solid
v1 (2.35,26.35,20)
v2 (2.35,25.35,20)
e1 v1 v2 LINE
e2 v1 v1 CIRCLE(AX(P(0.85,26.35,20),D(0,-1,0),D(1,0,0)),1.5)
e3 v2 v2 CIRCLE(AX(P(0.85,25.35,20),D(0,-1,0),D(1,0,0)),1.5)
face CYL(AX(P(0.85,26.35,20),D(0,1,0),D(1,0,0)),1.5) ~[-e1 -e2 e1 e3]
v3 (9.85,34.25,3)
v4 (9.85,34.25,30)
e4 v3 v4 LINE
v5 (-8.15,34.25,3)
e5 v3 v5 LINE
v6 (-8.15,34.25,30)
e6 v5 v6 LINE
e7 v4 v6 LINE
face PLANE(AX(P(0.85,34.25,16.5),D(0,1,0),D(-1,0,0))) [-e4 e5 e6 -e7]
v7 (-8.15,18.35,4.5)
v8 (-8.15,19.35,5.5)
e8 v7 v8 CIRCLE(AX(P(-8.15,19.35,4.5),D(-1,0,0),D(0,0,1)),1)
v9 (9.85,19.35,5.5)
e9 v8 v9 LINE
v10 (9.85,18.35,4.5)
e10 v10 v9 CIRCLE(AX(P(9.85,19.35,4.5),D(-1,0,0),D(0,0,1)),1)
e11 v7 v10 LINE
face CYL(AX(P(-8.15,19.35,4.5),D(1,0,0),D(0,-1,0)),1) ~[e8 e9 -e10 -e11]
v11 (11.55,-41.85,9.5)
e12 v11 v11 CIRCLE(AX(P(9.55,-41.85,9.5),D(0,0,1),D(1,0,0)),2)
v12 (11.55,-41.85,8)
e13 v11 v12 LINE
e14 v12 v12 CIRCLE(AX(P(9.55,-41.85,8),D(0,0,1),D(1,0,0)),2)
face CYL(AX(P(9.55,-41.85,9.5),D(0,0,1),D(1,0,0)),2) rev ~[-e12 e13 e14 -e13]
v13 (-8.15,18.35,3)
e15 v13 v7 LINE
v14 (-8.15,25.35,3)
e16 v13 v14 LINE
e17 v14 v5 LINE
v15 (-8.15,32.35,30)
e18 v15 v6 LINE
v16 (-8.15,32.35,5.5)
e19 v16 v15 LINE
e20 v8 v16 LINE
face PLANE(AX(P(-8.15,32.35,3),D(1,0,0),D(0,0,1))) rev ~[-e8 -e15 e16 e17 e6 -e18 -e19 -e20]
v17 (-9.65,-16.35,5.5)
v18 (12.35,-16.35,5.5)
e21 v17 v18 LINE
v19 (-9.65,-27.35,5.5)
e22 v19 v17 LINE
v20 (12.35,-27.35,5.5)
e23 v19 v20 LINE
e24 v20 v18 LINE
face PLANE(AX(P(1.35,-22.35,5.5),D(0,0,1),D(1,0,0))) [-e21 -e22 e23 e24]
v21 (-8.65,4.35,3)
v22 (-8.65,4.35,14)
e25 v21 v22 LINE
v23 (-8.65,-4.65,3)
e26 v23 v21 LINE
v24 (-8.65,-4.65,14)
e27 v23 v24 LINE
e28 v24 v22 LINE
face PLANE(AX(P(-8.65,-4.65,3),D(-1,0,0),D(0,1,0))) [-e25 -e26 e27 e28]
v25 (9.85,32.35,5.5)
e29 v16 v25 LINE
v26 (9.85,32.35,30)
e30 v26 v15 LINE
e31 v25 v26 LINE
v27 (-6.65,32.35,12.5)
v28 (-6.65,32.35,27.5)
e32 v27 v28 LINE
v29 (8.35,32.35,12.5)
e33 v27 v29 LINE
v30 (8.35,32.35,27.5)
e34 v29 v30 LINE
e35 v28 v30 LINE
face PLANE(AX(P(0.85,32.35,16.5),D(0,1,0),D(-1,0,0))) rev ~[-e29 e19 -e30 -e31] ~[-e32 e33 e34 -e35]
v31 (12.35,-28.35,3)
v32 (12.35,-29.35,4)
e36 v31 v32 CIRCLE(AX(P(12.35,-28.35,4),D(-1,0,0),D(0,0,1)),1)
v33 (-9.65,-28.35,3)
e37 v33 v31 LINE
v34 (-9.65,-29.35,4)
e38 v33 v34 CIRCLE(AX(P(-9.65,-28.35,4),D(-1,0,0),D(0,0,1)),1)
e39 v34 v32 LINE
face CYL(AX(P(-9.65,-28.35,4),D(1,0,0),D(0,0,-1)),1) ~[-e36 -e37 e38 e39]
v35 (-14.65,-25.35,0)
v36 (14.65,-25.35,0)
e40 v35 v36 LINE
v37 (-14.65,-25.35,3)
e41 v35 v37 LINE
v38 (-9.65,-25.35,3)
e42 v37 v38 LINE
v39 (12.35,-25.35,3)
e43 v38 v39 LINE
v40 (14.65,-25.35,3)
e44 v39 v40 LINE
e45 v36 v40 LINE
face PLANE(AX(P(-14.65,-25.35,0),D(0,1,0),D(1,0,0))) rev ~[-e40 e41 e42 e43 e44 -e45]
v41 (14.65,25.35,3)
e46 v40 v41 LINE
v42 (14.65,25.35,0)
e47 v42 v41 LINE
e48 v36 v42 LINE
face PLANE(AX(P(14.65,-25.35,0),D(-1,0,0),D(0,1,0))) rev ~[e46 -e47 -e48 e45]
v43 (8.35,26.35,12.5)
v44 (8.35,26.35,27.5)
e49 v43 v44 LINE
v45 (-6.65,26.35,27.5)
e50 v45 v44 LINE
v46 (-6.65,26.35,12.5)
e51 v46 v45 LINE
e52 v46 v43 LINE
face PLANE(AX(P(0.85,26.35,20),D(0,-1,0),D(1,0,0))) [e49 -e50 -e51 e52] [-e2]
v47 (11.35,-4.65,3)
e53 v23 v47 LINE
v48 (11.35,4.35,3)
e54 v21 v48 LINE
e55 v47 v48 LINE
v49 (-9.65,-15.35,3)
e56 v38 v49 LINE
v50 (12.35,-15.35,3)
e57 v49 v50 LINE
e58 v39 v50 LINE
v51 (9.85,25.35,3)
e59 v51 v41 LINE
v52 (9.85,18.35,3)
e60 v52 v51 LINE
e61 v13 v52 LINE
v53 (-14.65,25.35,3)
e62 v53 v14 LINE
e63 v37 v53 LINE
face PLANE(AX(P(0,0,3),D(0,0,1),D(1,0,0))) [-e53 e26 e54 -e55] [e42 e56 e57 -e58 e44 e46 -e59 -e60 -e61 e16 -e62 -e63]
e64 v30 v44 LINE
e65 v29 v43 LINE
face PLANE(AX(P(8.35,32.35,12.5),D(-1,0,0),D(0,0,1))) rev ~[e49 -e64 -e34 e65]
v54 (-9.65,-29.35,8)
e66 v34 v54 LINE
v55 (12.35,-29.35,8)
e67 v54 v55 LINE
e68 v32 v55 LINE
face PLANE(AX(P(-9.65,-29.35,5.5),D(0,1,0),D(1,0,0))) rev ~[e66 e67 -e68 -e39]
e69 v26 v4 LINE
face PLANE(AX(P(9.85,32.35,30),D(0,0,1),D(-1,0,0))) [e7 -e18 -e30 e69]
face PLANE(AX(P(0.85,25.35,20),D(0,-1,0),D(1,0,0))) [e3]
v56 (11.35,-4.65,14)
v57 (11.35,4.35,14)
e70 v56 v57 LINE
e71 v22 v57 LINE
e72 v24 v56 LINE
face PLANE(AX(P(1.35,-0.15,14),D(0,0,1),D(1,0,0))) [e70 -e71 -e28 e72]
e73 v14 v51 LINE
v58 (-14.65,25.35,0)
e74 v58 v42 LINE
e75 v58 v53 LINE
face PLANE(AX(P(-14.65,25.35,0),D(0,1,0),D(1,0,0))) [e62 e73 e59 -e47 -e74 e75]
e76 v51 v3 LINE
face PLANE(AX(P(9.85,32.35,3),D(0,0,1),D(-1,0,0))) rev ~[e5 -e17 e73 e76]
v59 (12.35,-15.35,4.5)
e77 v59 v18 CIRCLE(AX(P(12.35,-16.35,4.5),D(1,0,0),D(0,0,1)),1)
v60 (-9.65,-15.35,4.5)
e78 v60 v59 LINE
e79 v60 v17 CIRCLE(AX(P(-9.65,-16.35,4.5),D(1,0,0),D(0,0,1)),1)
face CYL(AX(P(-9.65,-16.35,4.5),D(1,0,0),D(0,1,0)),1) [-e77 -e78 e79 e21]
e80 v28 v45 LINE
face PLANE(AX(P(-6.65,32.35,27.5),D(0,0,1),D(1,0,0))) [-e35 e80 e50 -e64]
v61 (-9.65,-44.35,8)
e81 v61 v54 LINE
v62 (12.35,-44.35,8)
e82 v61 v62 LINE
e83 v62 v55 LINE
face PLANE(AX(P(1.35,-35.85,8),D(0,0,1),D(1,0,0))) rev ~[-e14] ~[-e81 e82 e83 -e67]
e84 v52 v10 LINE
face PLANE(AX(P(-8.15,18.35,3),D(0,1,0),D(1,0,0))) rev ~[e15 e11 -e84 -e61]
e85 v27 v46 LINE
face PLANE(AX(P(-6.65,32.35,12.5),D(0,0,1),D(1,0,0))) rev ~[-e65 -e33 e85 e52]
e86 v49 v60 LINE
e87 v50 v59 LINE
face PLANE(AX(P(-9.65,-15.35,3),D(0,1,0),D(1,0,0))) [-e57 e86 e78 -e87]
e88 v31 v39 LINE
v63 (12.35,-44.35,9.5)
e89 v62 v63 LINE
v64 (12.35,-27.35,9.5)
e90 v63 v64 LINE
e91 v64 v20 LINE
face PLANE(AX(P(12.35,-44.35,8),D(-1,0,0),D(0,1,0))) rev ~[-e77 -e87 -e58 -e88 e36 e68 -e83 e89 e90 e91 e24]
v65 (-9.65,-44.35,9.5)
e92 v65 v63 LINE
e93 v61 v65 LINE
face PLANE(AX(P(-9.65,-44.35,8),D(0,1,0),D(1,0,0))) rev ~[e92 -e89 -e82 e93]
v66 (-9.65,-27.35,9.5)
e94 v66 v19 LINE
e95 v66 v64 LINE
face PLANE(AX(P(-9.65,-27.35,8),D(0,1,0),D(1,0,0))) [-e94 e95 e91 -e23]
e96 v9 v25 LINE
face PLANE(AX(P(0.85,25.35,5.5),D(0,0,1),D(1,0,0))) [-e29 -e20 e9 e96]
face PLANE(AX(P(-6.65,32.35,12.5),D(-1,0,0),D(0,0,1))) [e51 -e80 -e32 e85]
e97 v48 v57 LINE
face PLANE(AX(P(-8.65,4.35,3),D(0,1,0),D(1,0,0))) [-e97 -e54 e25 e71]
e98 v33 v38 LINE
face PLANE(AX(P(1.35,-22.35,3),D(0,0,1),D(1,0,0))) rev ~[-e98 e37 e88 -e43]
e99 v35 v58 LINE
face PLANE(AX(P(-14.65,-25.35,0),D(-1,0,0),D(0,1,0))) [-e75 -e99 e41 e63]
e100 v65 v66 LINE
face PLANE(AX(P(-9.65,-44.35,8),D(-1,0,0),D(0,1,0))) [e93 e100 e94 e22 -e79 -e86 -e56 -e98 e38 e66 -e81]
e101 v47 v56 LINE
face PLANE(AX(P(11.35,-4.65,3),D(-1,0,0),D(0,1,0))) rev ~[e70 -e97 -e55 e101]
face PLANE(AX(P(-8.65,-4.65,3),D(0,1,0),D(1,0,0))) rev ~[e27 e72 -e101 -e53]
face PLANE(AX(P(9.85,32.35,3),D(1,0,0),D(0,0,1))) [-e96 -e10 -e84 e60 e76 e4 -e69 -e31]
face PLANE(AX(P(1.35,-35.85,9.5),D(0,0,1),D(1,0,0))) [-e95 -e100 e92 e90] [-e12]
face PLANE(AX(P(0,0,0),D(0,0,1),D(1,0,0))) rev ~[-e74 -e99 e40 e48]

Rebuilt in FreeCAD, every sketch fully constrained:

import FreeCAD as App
import Part
import Sketcher
from FreeCAD import Vector


def edges_at(feature, points):
    """Names of the edges that pass closest to the given points."""
    edges = feature.Shape.Edges
    near = lambda p: min(range(len(edges)), key=lambda i: edges[i].distToShape(Part.Vertex(*p))[0])
    return sorted({f"Edge{near(p) + 1}" for p in points})

doc = App.newDocument("Part")
body = doc.addObject("PartDesign::Body", "Body")

# Sketch on XY plane
sketch1 = body.newObject("Sketcher::SketchObject", "Sketch")
sketch1.AttachmentSupport = (doc.getObject("XY_Plane"), [""])
sketch1.MapMode = "FlatFace"
sketch1.addGeometry([
    Part.LineSegment(Vector(-15, 25, 0), Vector(-15, -25, 0)),
    Part.LineSegment(Vector(-15, -25, 0), Vector(15, -25, 0)),
    Part.LineSegment(Vector(15, -25, 0), Vector(15, 25, 0)),
    Part.LineSegment(Vector(15, 25, 0), Vector(-15, 25, 0)),
], False)
sketch1.addConstraint([
    Sketcher.Constraint("Coincident", 0, 2, 1, 1),
    Sketcher.Constraint("Coincident", 1, 2, 2, 1),
    Sketcher.Constraint("Coincident", 2, 2, 3, 1),
    Sketcher.Constraint("Coincident", 3, 2, 0, 1),
    Sketcher.Constraint("Vertical", 0),
    Sketcher.Constraint("Horizontal", 1),
    Sketcher.Constraint("Vertical", 2),
    Sketcher.Constraint("Horizontal", 3),
    Sketcher.Constraint("Symmetric", 0, 2, 2, 2, -1, 1),
    Sketcher.Constraint("DistanceX", 1, 1, 1, 2, 29.3),
    Sketcher.Constraint("DistanceY", 0, 2, 0, 1, 50.7),
])
pad1 = body.newObject("PartDesign::Pad", "Pad")
pad1.Profile = sketch1
pad1.Length = 3

# Sketch on XY plane
sketch2 = body.newObject("Sketcher::SketchObject", "Sketch001")
sketch2.AttachmentSupport = (doc.getObject("XY_Plane"), [""])
sketch2.MapMode = "FlatFace"
sketch2.AttachmentOffset = App.Placement(Vector(0, 0, 3), App.Rotation())
sketch2.addGeometry([
    Part.LineSegment(Vector(-8, 32, 0), Vector(-8, 18, 0)),  # 0
    Part.LineSegment(Vector(-8, 18, 0), Vector(10, 18, 0)),  # 1
    Part.LineSegment(Vector(10, 18, 0), Vector(10, 32, 0)),  # 2
    Part.LineSegment(Vector(10, 32, 0), Vector(-8, 32, 0)),  # 3
    Part.LineSegment(Vector(-10, -15, 0), Vector(-10, -29, 0)),  # 4
    Part.LineSegment(Vector(-10, -29, 0), Vector(12, -29, 0)),  # 5
    Part.LineSegment(Vector(12, -29, 0), Vector(12, -15, 0)),  # 6
    Part.LineSegment(Vector(12, -15, 0), Vector(-10, -15, 0)),  # 7
], False)
sketch2.addConstraint([
    Sketcher.Constraint("Coincident", 0, 2, 1, 1),
    Sketcher.Constraint("Coincident", 1, 2, 2, 1),
    Sketcher.Constraint("Coincident", 2, 2, 3, 1),
    Sketcher.Constraint("Coincident", 3, 2, 0, 1),
    Sketcher.Constraint("Coincident", 4, 2, 5, 1),
    Sketcher.Constraint("Coincident", 5, 2, 6, 1),
    Sketcher.Constraint("Coincident", 6, 2, 7, 1),
    Sketcher.Constraint("Coincident", 7, 2, 4, 1),
    Sketcher.Constraint("Vertical", 0),
    Sketcher.Constraint("Horizontal", 1),
    Sketcher.Constraint("Vertical", 2),
    Sketcher.Constraint("Horizontal", 3),
    Sketcher.Constraint("Vertical", 4),
    Sketcher.Constraint("Horizontal", 5),
    Sketcher.Constraint("Vertical", 6),
    Sketcher.Constraint("Horizontal", 7),
    Sketcher.Constraint("Equal", 2, 4),
    Sketcher.Constraint("DistanceX", 1, 1, 1, 2, 18.0),
    Sketcher.Constraint("DistanceX", 5, 1, 5, 2, 22.0),
    Sketcher.Constraint("DistanceY", 0, 2, 0, 1, 14.0),
    Sketcher.Constraint("DistanceX", 4, 2, 0, 2, 1.5),
    Sketcher.Constraint("DistanceY", 4, 2, 0, 2, 47.7),
    Sketcher.Constraint("DistanceX", 0, 2, -1, 1, 8.15),
    Sketcher.Constraint("DistanceY", -1, 1, 0, 2, 18.35),
])
pad2 = body.newObject("PartDesign::Pad", "Pad001")
pad2.Profile = sketch2
pad2.Length = 2.5
doc.recompute()

fillet = body.newObject("PartDesign::Fillet", "Fillet")
fillet.Base = (pad2, edges_at(pad2, [(0.85, 18.35, 5.5), (1.35, -15.35, 5.5)]))
fillet.Radius = 1

# Sketch on XZ plane
sketch3 = body.newObject("Sketcher::SketchObject", "Sketch002")
sketch3.AttachmentSupport = (doc.getObject("XZ_Plane"), [""])
sketch3.MapMode = "FlatFace"
sketch3.AttachmentOffset = App.Placement(Vector(0, 0, -32.35), App.Rotation())
sketch3.addGeometry([
    Part.LineSegment(Vector(10, 30, 0), Vector(10, 3, 0)),
    Part.LineSegment(Vector(10, 3, 0), Vector(-8, 3, 0)),
    Part.LineSegment(Vector(-8, 3, 0), Vector(-8, 30, 0)),
    Part.LineSegment(Vector(-8, 30, 0), Vector(10, 30, 0)),
], False)
sketch3.addConstraint([
    Sketcher.Constraint("Coincident", 0, 2, 1, 1),
    Sketcher.Constraint("Coincident", 1, 2, 2, 1),
    Sketcher.Constraint("Coincident", 2, 2, 3, 1),
    Sketcher.Constraint("Coincident", 3, 2, 0, 1),
    Sketcher.Constraint("Vertical", 0),
    Sketcher.Constraint("Horizontal", 1),
    Sketcher.Constraint("Vertical", 2),
    Sketcher.Constraint("Horizontal", 3),
    Sketcher.Constraint("DistanceX", 1, 2, 1, 1, 18.0),
    Sketcher.Constraint("DistanceY", 0, 2, 0, 1, 27.0),
    Sketcher.Constraint("DistanceY", -1, 1, 0, 2, 3.0),
    Sketcher.Constraint("DistanceX", -1, 1, 0, 2, 9.85),
])
pad3 = body.newObject("PartDesign::Pad", "Pad002")
pad3.Profile = sketch3
pad3.Length = 1.9
pad3.Reversed = True

# Sketch on XZ plane
sketch4 = body.newObject("Sketcher::SketchObject", "Sketch003")
sketch4.AttachmentSupport = (doc.getObject("XZ_Plane"), [""])
sketch4.MapMode = "FlatFace"
sketch4.AttachmentOffset = App.Placement(Vector(0, 0, -32.35), App.Rotation())
sketch4.addGeometry([
    Part.LineSegment(Vector(-7, 28, 0), Vector(-7, 12, 0)),
    Part.LineSegment(Vector(-7, 12, 0), Vector(8, 12, 0)),
    Part.LineSegment(Vector(8, 12, 0), Vector(8, 28, 0)),
    Part.LineSegment(Vector(8, 28, 0), Vector(-7, 28, 0)),
], False)
sketch4.addConstraint([
    Sketcher.Constraint("Coincident", 0, 2, 1, 1),
    Sketcher.Constraint("Coincident", 1, 2, 2, 1),
    Sketcher.Constraint("Coincident", 2, 2, 3, 1),
    Sketcher.Constraint("Coincident", 3, 2, 0, 1),
    Sketcher.Constraint("Vertical", 0),
    Sketcher.Constraint("Horizontal", 1),
    Sketcher.Constraint("Vertical", 2),
    Sketcher.Constraint("Horizontal", 3),
    Sketcher.Constraint("Equal", 3, 0),
    Sketcher.Constraint("DistanceX", 1, 1, 1, 2, 15.0),
    Sketcher.Constraint("DistanceY", -1, 1, 0, 2, 12.5),
    Sketcher.Constraint("DistanceX", 0, 2, -1, 1, 6.65),
])
pad4 = body.newObject("PartDesign::Pad", "Pad003")
pad4.Profile = sketch4
pad4.Length = 6

# Sketch on XZ plane
sketch5 = body.newObject("Sketcher::SketchObject", "Sketch004")
sketch5.AttachmentSupport = (doc.getObject("XZ_Plane"), [""])
sketch5.MapMode = "FlatFace"
sketch5.AttachmentOffset = App.Placement(Vector(0, 0, -26.35), App.Rotation())
sketch5.addGeometry(Part.Circle(Vector(0.8, 20, 0), Vector(0, 0, 1), 1.5), False)
sketch5.addConstraint([
    Sketcher.Constraint("Diameter", 0, 3.0),
    Sketcher.Constraint("DistanceY", -1, 1, 0, 3, 20.0),
    Sketcher.Constraint("DistanceX", -1, 1, 0, 3, 0.85),
])
pad5 = body.newObject("PartDesign::Pad", "Pad004")
pad5.Profile = sketch5
pad5.Length = 1

# Sketch on XY plane
sketch6 = body.newObject("Sketcher::SketchObject", "Sketch005")
sketch6.AttachmentSupport = (doc.getObject("XY_Plane"), [""])
sketch6.MapMode = "FlatFace"
sketch6.AttachmentOffset = App.Placement(Vector(0, 0, 5.5), App.Rotation())
sketch6.addGeometry([
    Part.LineSegment(Vector(-9.7, -27.4, 0), Vector(-9.7, -29.4, 0)),
    Part.LineSegment(Vector(-9.7, -29.4, 0), Vector(12.3, -29.4, 0)),
    Part.LineSegment(Vector(12.3, -29.4, 0), Vector(12.3, -27.4, 0)),
    Part.LineSegment(Vector(12.3, -27.4, 0), Vector(-9.7, -27.4, 0)),
], False)
sketch6.addConstraint([
    Sketcher.Constraint("Coincident", 0, 2, 1, 1),
    Sketcher.Constraint("Coincident", 1, 2, 2, 1),
    Sketcher.Constraint("Coincident", 2, 2, 3, 1),
    Sketcher.Constraint("Coincident", 3, 2, 0, 1),
    Sketcher.Constraint("Vertical", 0),
    Sketcher.Constraint("Horizontal", 1),
    Sketcher.Constraint("Vertical", 2),
    Sketcher.Constraint("Horizontal", 3),
    Sketcher.Constraint("DistanceX", 1, 1, 1, 2, 22.0),
    Sketcher.Constraint("DistanceY", 0, 2, 0, 1, 2.0),
    Sketcher.Constraint("DistanceX", 0, 2, -1, 1, 9.65),
    Sketcher.Constraint("DistanceY", 0, 2, -1, 1, 29.35),
])
pad6 = body.newObject("PartDesign::Pad", "Pad005")
pad6.Profile = sketch6
pad6.Length = 2.5

# Sketch on XY plane
sketch7 = body.newObject("Sketcher::SketchObject", "Sketch006")
sketch7.AttachmentSupport = (doc.getObject("XY_Plane"), [""])
sketch7.MapMode = "FlatFace"
sketch7.AttachmentOffset = App.Placement(Vector(0, 0, 8), App.Rotation())
sketch7.addGeometry([
    Part.LineSegment(Vector(-10, -27, 0), Vector(-10, -44, 0)),
    Part.LineSegment(Vector(-10, -44, 0), Vector(12, -44, 0)),
    Part.LineSegment(Vector(12, -44, 0), Vector(12, -27, 0)),
    Part.LineSegment(Vector(12, -27, 0), Vector(-10, -27, 0)),
], False)
sketch7.addConstraint([
    Sketcher.Constraint("Coincident", 0, 2, 1, 1),
    Sketcher.Constraint("Coincident", 1, 2, 2, 1),
    Sketcher.Constraint("Coincident", 2, 2, 3, 1),
    Sketcher.Constraint("Coincident", 3, 2, 0, 1),
    Sketcher.Constraint("Vertical", 0),
    Sketcher.Constraint("Horizontal", 1),
    Sketcher.Constraint("Vertical", 2),
    Sketcher.Constraint("Horizontal", 3),
    Sketcher.Constraint("DistanceX", 1, 1, 1, 2, 22.0),
    Sketcher.Constraint("DistanceY", 0, 2, 0, 1, 17.0),
    Sketcher.Constraint("DistanceX", 0, 2, -1, 1, 9.65),
    Sketcher.Constraint("DistanceY", 0, 2, -1, 1, 44.35),
])
pad7 = body.newObject("PartDesign::Pad", "Pad006")
pad7.Profile = sketch7
pad7.Length = 1.5

# Sketch on XY plane
sketch8 = body.newObject("Sketcher::SketchObject", "Sketch007")
sketch8.AttachmentSupport = (doc.getObject("XY_Plane"), [""])
sketch8.MapMode = "FlatFace"
sketch8.AttachmentOffset = App.Placement(Vector(0, 0, 9.5), App.Rotation())
sketch8.addGeometry(Part.Circle(Vector(9.6, -41.9, 0), Vector(0, 0, 1), 2), False)
sketch8.addConstraint([
    Sketcher.Constraint("Diameter", 0, 4.0),
    Sketcher.Constraint("DistanceX", -1, 1, 0, 3, 9.55),
    Sketcher.Constraint("DistanceY", 0, 3, -1, 1, 41.85),
])
pocket1 = body.newObject("PartDesign::Pocket", "Pocket")
pocket1.Profile = sketch8
pocket1.Length = 5

# Sketch on XY plane
sketch9 = body.newObject("Sketcher::SketchObject", "Sketch008")
sketch9.AttachmentSupport = (doc.getObject("XY_Plane"), [""])
sketch9.MapMode = "FlatFace"
sketch9.AttachmentOffset = App.Placement(Vector(0, 0, 3), App.Rotation())
sketch9.addGeometry([
    Part.LineSegment(Vector(-9, 4, 0), Vector(-9, -5, 0)),
    Part.LineSegment(Vector(-9, -5, 0), Vector(11, -5, 0)),
    Part.LineSegment(Vector(11, -5, 0), Vector(11, 4, 0)),
    Part.LineSegment(Vector(11, 4, 0), Vector(-9, 4, 0)),
], False)
sketch9.addConstraint([
    Sketcher.Constraint("Coincident", 0, 2, 1, 1),
    Sketcher.Constraint("Coincident", 1, 2, 2, 1),
    Sketcher.Constraint("Coincident", 2, 2, 3, 1),
    Sketcher.Constraint("Coincident", 3, 2, 0, 1),
    Sketcher.Constraint("Vertical", 0),
    Sketcher.Constraint("Horizontal", 1),
    Sketcher.Constraint("Vertical", 2),
    Sketcher.Constraint("Horizontal", 3),
    Sketcher.Constraint("DistanceX", 1, 1, 1, 2, 20.0),
    Sketcher.Constraint("DistanceY", 0, 2, 0, 1, 9.0),
    Sketcher.Constraint("DistanceX", 0, 2, -1, 1, 8.65),
    Sketcher.Constraint("DistanceY", 0, 2, -1, 1, 4.65),
])
pad8 = body.newObject("PartDesign::Pad", "Pad007")
pad8.Profile = sketch9
pad8.Length = 11
doc.recompute()

fillet2 = body.newObject("PartDesign::Fillet", "Fillet001")
fillet2.Base = (pad8, edges_at(pad8, [(1.35, -29.35, 3)]))
fillet2.Radius = 1

doc.recompute()
